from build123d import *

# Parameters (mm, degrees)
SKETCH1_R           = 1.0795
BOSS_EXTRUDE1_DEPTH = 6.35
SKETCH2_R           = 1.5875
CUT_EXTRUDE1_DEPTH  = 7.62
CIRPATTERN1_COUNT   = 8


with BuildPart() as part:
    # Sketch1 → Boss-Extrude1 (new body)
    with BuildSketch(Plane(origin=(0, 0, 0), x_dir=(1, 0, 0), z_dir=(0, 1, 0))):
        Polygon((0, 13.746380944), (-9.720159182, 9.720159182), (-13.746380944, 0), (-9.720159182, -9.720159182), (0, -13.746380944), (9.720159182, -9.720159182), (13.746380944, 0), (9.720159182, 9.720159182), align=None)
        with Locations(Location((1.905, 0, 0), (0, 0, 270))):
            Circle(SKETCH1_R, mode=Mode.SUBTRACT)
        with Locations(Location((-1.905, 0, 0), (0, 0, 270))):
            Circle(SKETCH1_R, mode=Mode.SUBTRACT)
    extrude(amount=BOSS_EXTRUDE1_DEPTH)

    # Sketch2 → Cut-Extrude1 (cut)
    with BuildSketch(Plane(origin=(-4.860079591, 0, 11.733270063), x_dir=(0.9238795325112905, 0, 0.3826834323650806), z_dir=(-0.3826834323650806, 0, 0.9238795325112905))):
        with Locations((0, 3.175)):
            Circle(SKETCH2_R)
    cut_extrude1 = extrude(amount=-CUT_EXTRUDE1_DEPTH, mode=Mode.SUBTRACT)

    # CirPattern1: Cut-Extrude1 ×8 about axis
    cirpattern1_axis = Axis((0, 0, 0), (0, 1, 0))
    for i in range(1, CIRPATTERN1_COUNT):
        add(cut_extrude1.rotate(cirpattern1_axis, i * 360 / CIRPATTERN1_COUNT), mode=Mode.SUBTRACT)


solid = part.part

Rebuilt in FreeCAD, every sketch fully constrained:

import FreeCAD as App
import Part
import Sketcher

V = App.Vector
Q = App.Units.Quantity


def add_polygon(sketch, points):
    """Adds a closed chain of lines whose ends are joined by coincident constraints."""
    first, n = sketch.GeometryCount, len(points)
    for a, b in zip(points, points[1:] + points[:1]):
        sketch.addGeometry(Part.LineSegment(App.Vector(*a, 0), App.Vector(*b, 0)), False)
    for i in range(n):
        sketch.addConstraint(Sketcher.Constraint("Coincident", first + i, 2, first + (i + 1) % n, 1))

doc = App.newDocument("Part")
body = doc.addObject("PartDesign::Body", "Body")

sketch1 = doc.addObject("Sketcher::SketchObject", "Sketch")
body.addObject(sketch1)
sketch1.AttachmentSupport = (doc.XZ_Plane, [""])
sketch1.MapMode = "FlatFace"
add_polygon(sketch1, [(0, -13.7), (-9.7, -9.7), (-13.7, 0), (-9.7, 9.7), (0, 13.7), (9.7, 9.7), (13.7, 0), (9.7, -9.7)])
sketch1.addGeometry(Part.Circle(V(-1.9, 0, 0), V(0, 0, 1), 1.1), False)
sketch1.addGeometry(Part.Circle(V(1.9, 0, 0), V(0, 0, 1), 1.1), False)
sketch1.addConstraint([
    Sketcher.Constraint("Equal", 8, 9),
    Sketcher.Constraint("Symmetric", 8, 3, 9, 3, -1, 1),
    Sketcher.Constraint("Symmetric", 0, 2, 4, 2, -1, 1),
    Sketcher.Constraint("Symmetric", 1, 2, 5, 2, -1, 1),
    Sketcher.Constraint("Symmetric", 2, 2, 6, 2, -1, 1),
    Sketcher.Constraint("Symmetric", 3, 2, 7, 2, -1, 1),
    Sketcher.Constraint("Symmetric", 2, 2, 4, 2, -2),
    Sketcher.Constraint("PointOnObject", 8, 3, -1),
    Sketcher.Constraint("PointOnObject", 1, 2, -1),
    Sketcher.Constraint("PointOnObject", 3, 2, -2),
    Sketcher.Constraint("Perpendicular", 0, 2),
    Sketcher.Constraint("Equal", 0, 1),
    Sketcher.Constraint("Diameter", 8, Q("0.085 in")),
    Sketcher.Constraint("Angle", 0, Q("157.5 deg")),
    Sketcher.Constraint("DistanceX", 8, 3, 9, 3, Q("0.15 in")),
    Sketcher.Constraint("DistanceX", 0, 2, -1, 1, 9.720159),
])
pad1 = doc.addObject("PartDesign::Pad", "Pad")
body.addObject(pad1)
pad1.Profile = sketch1
pad1.Length = Q("0.25 in")
pad1.Reversed = True

sketch2 = doc.addObject("Sketcher::SketchObject", "Sketch001")
body.addObject(sketch2)
sketch2.Placement = App.Placement(V(-4.86008, 0, 11.73327), App.Rotation(V(0.923879533, 0, 0.382683432), V(0, 1.000000001, 0), V(-0.382683432, 0, 0.923879533), "ZXY"))
sketch2.addGeometry(Part.Circle(V(0, 3.2, 0), V(0, 0, 1), 1.6), False)
sketch2.addConstraint([
    Sketcher.Constraint("PointOnObject", 0, 3, -2),
    Sketcher.Constraint("Diameter", 0, Q("0.125 in")),
    Sketcher.Constraint("DistanceY", -1, 1, 0, 3, Q("0.125 in")),
])
pocket1 = doc.addObject("PartDesign::Pocket", "Pocket")
body.addObject(pocket1)
pocket1.Profile = sketch2
pocket1.Length = Q("0.3 in")
doc.recompute()

polarpattern = doc.addObject("PartDesign::PolarPattern", "PolarPattern")
body.addObject(polarpattern)
polarpattern.Originals = [pocket1]
polarpattern.Axis = (doc.Y_Axis, [""])
polarpattern.Angle = 360
polarpattern.Occurrences = 8
body.Tip = polarpattern

doc.recompute()
